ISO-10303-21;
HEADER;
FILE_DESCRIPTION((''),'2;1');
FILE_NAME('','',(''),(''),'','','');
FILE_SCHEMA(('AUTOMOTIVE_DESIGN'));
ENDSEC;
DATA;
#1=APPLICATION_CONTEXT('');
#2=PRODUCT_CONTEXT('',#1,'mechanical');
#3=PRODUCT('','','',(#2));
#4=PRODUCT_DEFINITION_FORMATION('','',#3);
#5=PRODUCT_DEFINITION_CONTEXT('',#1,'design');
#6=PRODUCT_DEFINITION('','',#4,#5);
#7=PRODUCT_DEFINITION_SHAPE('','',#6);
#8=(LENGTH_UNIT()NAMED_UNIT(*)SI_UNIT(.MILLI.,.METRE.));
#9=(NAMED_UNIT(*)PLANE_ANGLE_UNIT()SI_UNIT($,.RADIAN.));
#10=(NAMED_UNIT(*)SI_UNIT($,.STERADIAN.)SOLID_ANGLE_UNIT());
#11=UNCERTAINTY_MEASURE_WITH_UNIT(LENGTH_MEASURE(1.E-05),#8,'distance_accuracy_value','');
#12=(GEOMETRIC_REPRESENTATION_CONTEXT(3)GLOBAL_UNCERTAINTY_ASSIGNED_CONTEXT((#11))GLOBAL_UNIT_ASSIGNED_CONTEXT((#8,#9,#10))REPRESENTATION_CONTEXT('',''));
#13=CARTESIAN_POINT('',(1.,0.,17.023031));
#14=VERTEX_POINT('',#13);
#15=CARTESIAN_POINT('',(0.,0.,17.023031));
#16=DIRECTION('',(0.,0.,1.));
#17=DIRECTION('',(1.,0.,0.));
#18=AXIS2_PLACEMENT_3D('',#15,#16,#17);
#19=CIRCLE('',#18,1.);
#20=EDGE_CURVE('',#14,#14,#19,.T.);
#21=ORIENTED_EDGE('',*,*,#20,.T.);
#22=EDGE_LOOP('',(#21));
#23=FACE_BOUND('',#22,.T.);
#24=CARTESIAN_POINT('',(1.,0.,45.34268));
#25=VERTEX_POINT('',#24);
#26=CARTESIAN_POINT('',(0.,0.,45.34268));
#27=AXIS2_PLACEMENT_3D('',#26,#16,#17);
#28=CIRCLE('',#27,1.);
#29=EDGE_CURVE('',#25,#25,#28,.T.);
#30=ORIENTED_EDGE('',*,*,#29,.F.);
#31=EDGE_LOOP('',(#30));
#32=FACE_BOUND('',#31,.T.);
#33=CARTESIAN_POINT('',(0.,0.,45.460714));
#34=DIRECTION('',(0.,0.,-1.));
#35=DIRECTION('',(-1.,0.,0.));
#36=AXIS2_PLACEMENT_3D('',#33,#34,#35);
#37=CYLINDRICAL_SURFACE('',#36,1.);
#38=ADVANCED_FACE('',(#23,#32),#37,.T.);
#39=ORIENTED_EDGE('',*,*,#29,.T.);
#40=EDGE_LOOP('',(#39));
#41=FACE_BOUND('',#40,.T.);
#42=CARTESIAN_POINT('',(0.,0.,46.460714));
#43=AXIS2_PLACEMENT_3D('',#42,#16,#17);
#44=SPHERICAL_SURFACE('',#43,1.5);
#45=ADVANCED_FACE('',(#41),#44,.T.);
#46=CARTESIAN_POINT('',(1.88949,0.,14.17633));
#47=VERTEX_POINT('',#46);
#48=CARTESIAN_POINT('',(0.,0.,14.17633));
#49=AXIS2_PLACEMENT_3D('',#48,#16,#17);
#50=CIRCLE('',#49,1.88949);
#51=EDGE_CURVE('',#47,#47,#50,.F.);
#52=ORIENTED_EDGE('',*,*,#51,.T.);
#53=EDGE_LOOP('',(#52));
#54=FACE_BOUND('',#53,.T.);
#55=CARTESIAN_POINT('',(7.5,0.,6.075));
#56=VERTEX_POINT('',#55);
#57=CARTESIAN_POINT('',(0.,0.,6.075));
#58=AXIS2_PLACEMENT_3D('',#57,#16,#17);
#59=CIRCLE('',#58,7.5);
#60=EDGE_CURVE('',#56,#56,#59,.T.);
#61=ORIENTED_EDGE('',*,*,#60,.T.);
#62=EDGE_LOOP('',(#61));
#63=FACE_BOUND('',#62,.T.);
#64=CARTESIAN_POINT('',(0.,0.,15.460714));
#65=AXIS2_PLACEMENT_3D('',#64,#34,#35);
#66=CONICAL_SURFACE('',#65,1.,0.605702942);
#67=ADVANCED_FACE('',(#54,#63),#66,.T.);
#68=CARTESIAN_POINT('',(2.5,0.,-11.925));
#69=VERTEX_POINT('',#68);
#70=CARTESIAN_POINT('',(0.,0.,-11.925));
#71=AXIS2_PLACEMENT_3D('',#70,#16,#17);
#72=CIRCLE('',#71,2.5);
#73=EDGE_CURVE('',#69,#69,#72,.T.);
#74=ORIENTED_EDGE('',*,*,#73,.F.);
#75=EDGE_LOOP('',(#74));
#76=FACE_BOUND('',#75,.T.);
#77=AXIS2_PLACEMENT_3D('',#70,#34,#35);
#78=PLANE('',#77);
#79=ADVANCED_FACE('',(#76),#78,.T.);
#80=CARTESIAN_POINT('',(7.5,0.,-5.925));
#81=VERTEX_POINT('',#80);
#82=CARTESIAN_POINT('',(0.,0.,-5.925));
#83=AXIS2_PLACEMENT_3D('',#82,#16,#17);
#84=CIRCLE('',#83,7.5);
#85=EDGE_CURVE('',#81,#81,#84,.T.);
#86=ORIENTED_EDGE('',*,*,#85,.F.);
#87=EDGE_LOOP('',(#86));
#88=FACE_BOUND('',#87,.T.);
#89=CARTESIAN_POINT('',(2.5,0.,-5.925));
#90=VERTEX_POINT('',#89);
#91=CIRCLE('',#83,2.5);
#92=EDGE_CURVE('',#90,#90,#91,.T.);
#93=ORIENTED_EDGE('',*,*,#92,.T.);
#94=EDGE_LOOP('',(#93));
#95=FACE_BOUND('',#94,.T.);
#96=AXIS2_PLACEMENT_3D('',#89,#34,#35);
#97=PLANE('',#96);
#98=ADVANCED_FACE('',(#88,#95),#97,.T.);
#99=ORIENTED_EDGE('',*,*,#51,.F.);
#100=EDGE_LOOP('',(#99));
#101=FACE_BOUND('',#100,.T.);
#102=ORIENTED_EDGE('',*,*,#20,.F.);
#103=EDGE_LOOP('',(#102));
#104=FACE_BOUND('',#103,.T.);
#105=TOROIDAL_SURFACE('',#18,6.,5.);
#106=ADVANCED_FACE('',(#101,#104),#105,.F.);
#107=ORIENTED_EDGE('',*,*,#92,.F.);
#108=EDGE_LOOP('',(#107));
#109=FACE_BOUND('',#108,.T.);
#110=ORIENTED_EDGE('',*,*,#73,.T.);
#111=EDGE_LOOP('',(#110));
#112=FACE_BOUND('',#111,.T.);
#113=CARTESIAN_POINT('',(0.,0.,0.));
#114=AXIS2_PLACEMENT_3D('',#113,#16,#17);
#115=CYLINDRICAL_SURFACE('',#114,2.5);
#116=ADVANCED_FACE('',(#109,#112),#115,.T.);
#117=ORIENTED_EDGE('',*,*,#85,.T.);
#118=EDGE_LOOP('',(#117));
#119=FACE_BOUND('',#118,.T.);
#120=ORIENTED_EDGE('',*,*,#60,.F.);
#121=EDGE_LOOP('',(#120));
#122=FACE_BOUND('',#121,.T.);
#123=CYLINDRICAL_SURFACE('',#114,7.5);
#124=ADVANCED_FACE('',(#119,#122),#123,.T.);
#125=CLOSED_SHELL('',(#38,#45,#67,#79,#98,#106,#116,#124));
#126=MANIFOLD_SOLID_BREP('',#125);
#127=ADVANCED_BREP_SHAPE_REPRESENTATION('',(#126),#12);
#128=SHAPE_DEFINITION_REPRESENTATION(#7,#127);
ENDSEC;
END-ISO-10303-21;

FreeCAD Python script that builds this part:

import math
import FreeCAD as App
import Part
import Sketcher


def edges_at(feature, points):
    """Names of the edges that pass closest to the given points."""
    edges = feature.Shape.Edges
    near = lambda p: min(range(len(edges)), key=lambda i: edges[i].distToShape(Part.Vertex(*p))[0])
    return sorted({f"Edge{near(p) + 1}" for p in points})

doc = App.newDocument("Part")
params = doc.addObject("Spreadsheet::Sheet", "Params")
for row, (alias, value) in enumerate([
    ("sketch1_width", "1 mm"),
    ("sketch1_width2", "5 mm"),
    ("sketch1_height", "12 mm"),
    ("sketch1_height2", "6 mm"),
    ("sketch1_width3", "2.5 mm"),
    ("revolution_angle", "360 deg"),
    ("sketch2_diameter", "2 mm"),
    ("pad1_length", "30 mm"),
    ("fillet_radius", "5 mm"),
    ("sketch3_radius", "1.5 mm"),
    ("revolution2_angle", "360 deg"),
], start=1):
    params.set(f"A{row}", alias)
    params.set(f"B{row}", "=" + value)
    params.setAlias(f"B{row}", alias)

body = doc.addObject("PartDesign::Body", "Body")

# Sketch on XZ plane
sketch1 = body.newObject("Sketcher::SketchObject", "Sketch")
sketch1.AttachmentSupport = (doc.getObject("XZ_Plane"), [""])
sketch1.MapMode = "FlatFace"
sketch1.addGeometry([
    Part.LineSegment(App.Vector(0, -11.925, 0), App.Vector(0, 15.460714, 0)),  # 0
    Part.LineSegment(App.Vector(0, 15.460714, 0), App.Vector(1, 15.460714, 0)),  # 1
    Part.LineSegment(App.Vector(1, 15.460714, 0), App.Vector(7.5, 6.075, 0)),  # 2
    Part.LineSegment(App.Vector(7.5, 6.075, 0), App.Vector(7.5, -5.925, 0)),  # 3
    Part.LineSegment(App.Vector(7.5, -5.925, 0), App.Vector(2.5, -5.925, 0)),  # 4
    Part.LineSegment(App.Vector(2.5, -5.925, 0), App.Vector(2.5, -11.925, 0)),  # 5
    Part.LineSegment(App.Vector(2.5, -11.925, 0), App.Vector(0, -11.925, 0)),  # 6
], False)
sketch1.addConstraint([
    Sketcher.Constraint("Coincident", 0, 2, 1, 1),
    Sketcher.Constraint("Coincident", 1, 2, 2, 1),
    Sketcher.Constraint("Coincident", 2, 2, 3, 1),
    Sketcher.Constraint("Coincident", 3, 2, 4, 1),
    Sketcher.Constraint("Coincident", 4, 2, 5, 1),
    Sketcher.Constraint("Coincident", 5, 2, 6, 1),
    Sketcher.Constraint("Coincident", 6, 2, 0, 1),
    Sketcher.Constraint("Vertical", 0),
    Sketcher.Constraint("Horizontal", 1),
    Sketcher.Constraint("Vertical", 3),
    Sketcher.Constraint("Horizontal", 4),
    Sketcher.Constraint("Vertical", 5),
    Sketcher.Constraint("Horizontal", 6),
    Sketcher.Constraint("PointOnObject", 0, 2, -2),
    Sketcher.Constraint("DistanceX", 1, 1, 1, 2, 1.0),
    Sketcher.Constraint("DistanceX", 4, 2, 4, 1, 5.0),
    Sketcher.Constraint("DistanceY", 3, 2, 3, 1, 12.0),
    Sketcher.Constraint("DistanceY", 5, 2, 5, 1, 6.0),
    Sketcher.Constraint("DistanceX", 6, 2, 6, 1, 2.5),
    Sketcher.Constraint("DistanceY", -1, 1, 2, 2, 6.075),
    Sketcher.Constraint("DistanceY", 0, 1, 0, 2, 27.385714),
])
sketch1.setExpression("Constraints[14]", "Params.sketch1_width")
sketch1.setExpression("Constraints[15]", "Params.sketch1_width2")
sketch1.setExpression("Constraints[16]", "Params.sketch1_height")
sketch1.setExpression("Constraints[17]", "Params.sketch1_height2")
sketch1.setExpression("Constraints[18]", "Params.sketch1_width3")
revolution = body.newObject("PartDesign::Revolution", "Revolution")
revolution.Profile = sketch1
revolution.ReferenceAxis = (sketch1, ["V_Axis"])
revolution.setExpression("Angle", "Params.revolution_angle")

# Sketch on XY plane
sketch2 = body.newObject("Sketcher::SketchObject", "Sketch001")
sketch2.AttachmentSupport = (doc.getObject("XY_Plane"), [""])
sketch2.MapMode = "FlatFace"
sketch2.AttachmentOffset = App.Placement(App.Vector(0, 0, 15.460714), App.Rotation())
sketch2.addGeometry(Part.Circle(App.Vector(0, 0, 0), App.Vector(0, 0, 1), 1), False)
sketch2.addConstraint([
    Sketcher.Constraint("Coincident", 0, 3, -1, 1),
    Sketcher.Constraint("Diameter", 0, 2.0),
])
sketch2.setExpression("Constraints[1]", "Params.sketch2_diameter")
pad1 = body.newObject("PartDesign::Pad", "Pad")
pad1.Profile = sketch2
pad1.setExpression("Length", "Params.pad1_length")
doc.recompute()

fillet = body.newObject("PartDesign::Fillet", "Fillet")
fillet.Base = (pad1, edges_at(pad1, [(-1, 0, 15.461)]))
fillet.setExpression("Radius", "Params.fillet_radius")

# Sketch on XY plane
sketch3 = body.newObject("Sketcher::SketchObject", "Sketch002")
sketch3.AttachmentSupport = (doc.getObject("XY_Plane"), [""])
sketch3.MapMode = "FlatFace"
sketch3.AttachmentOffset = App.Placement(App.Vector(0, 0, 46.460714), App.Rotation())
sketch3.addGeometry([
    Part.LineSegment(App.Vector(-1.5, 0, 0), App.Vector(1.5, 0, 0)),
    Part.ArcOfCircle(Part.Circle(App.Vector(0, 0, 0), App.Vector(0, 0, 1), 1.5), math.radians(180), math.radians(360)),
], False)
sketch3.addConstraint([
    Sketcher.Constraint("Coincident", 0, 1, 1, 1),
    Sketcher.Constraint("Coincident", 1, 2, 0, 2),
    Sketcher.Constraint("Horizontal", 0),
    Sketcher.Constraint("Coincident", 1, 3, -1, 1),
    Sketcher.Constraint("PointOnObject", 0, 1, -1),
    Sketcher.Constraint("Radius", 1, 1.5),
])
sketch3.setExpression("Constraints[5]", "Params.sketch3_radius")
revolution2 = body.newObject("PartDesign::Revolution", "Revolution001")
revolution2.Profile = sketch3
revolution2.ReferenceAxis = (sketch3, ["H_Axis"])
revolution2.setExpression("Angle", "Params.revolution2_angle")

doc.recompute()
